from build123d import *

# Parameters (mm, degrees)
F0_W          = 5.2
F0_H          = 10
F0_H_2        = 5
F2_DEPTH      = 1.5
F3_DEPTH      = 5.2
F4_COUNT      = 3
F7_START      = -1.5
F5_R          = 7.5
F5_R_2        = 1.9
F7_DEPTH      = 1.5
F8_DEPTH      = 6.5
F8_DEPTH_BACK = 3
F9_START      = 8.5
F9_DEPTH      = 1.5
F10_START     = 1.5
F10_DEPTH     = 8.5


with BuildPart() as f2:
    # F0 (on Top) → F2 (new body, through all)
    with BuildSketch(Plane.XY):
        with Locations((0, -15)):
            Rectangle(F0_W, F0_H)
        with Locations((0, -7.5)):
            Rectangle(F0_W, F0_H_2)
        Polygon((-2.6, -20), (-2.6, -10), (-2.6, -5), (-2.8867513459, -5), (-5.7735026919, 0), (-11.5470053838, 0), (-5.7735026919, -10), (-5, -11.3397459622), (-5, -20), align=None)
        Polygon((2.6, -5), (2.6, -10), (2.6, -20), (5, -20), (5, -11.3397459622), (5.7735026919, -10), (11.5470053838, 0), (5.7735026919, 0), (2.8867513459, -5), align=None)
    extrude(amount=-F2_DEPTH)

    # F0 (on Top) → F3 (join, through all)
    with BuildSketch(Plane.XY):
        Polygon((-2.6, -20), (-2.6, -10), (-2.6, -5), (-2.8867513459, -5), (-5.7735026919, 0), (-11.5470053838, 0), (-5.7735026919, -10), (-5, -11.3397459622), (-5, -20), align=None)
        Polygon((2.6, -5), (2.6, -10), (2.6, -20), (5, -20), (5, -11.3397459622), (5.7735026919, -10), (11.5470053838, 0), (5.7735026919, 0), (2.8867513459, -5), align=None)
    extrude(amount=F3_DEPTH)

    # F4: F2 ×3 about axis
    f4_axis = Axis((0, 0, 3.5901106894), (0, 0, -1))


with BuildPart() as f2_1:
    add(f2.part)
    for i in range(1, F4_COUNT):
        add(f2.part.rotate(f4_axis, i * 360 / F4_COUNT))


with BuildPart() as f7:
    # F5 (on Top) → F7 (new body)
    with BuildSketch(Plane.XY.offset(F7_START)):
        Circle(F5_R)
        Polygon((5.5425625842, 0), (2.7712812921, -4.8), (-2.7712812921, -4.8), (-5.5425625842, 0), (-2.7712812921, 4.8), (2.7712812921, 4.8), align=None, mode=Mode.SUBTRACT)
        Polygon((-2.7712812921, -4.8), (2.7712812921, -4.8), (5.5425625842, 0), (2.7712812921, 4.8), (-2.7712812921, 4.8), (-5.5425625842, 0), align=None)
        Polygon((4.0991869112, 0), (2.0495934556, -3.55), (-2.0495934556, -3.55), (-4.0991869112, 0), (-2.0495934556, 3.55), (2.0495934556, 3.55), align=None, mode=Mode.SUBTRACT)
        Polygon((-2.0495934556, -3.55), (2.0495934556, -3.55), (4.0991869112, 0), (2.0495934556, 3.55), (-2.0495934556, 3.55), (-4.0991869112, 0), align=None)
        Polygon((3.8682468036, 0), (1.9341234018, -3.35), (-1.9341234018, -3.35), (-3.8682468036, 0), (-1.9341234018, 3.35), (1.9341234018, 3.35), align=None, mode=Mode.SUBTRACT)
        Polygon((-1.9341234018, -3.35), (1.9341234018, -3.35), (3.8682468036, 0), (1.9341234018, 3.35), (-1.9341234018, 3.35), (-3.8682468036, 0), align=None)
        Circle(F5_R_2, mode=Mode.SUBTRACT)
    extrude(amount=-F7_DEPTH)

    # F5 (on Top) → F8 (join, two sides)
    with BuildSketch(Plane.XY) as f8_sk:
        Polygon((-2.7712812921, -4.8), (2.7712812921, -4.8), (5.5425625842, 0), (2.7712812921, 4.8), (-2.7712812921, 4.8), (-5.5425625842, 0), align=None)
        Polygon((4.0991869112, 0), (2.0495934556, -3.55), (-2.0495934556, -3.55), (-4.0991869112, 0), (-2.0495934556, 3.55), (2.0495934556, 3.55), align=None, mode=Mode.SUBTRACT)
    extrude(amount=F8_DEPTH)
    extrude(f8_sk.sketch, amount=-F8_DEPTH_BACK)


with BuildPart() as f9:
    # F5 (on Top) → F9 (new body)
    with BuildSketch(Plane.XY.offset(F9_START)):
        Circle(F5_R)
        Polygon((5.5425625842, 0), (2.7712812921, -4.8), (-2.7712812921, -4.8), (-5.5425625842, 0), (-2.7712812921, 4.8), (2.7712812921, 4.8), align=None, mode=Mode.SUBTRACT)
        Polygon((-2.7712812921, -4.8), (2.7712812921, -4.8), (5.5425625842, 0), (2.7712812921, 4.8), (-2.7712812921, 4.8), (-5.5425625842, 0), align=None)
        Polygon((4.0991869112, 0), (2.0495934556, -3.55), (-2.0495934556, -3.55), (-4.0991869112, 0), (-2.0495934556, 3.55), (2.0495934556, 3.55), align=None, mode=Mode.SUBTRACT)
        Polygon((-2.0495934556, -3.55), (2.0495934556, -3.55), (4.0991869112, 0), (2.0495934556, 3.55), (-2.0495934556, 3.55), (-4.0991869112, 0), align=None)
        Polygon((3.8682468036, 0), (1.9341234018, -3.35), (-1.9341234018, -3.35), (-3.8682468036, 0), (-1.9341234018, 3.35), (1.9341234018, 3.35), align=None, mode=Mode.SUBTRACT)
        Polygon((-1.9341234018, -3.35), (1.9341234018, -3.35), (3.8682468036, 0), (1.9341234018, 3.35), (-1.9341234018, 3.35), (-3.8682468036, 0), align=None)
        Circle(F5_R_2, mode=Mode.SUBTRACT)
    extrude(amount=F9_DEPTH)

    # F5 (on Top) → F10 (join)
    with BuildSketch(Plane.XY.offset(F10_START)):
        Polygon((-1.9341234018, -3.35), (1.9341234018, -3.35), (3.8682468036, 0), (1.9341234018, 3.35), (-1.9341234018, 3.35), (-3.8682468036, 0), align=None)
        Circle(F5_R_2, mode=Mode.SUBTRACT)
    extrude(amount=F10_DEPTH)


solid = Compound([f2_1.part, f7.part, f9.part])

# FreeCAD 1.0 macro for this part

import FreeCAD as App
import Part
import Sketcher
Q = App.Units.Quantity

doc = App.newDocument("Part")
body = doc.addObject("PartDesign::Body", "Body")

sketch1 = body.newObject("Sketcher::SketchObject", "Sketch")
sketch1.AttachmentSupport = (doc.getObject("XY_Plane"), [""])
sketch1.MapMode = "FlatFace"
sketch1.addGeometry(Part.LineSegment(App.Vector(-2.9, -5, 0), App.Vector(-5.8, 0, 0)), False)
sketch1.addGeometry(Part.LineSegment(App.Vector(-5.8, 0, 0), App.Vector(-11.5, 0, 0)), False)
sketch1.addGeometry(Part.LineSegment(App.Vector(-11.5, 0, 0), App.Vector(-5.8, -10, 0)), False)
sketch1.addGeometry(Part.LineSegment(App.Vector(-5.8, -10, 0), App.Vector(-5, -11.3, 0)), False)
sketch1.addGeometry(Part.LineSegment(App.Vector(-5, -11.3, 0), App.Vector(-5, -20, 0)), False)
sketch1.addGeometry(Part.LineSegment(App.Vector(-5, -20, 0), App.Vector(5, -20, 0)), False)
sketch1.addGeometry(Part.LineSegment(App.Vector(5, -20, 0), App.Vector(5, -11.3, 0)), False)
sketch1.addGeometry(Part.LineSegment(App.Vector(5, -11.3, 0), App.Vector(5.8, -10, 0)), False)
sketch1.addGeometry(Part.LineSegment(App.Vector(5.8, -10, 0), App.Vector(11.5, 0, 0)), False)
sketch1.addGeometry(Part.LineSegment(App.Vector(11.5, 0, 0), App.Vector(5.8, 0, 0)), False)
sketch1.addGeometry(Part.LineSegment(App.Vector(5.8, 0, 0), App.Vector(2.9, -5, 0)), False)
sketch1.addGeometry(Part.LineSegment(App.Vector(2.9, -5, 0), App.Vector(-2.9, -5, 0)), False)
sketch1.addConstraint(Sketcher.Constraint("Coincident", 0, 2, 1, 1))
sketch1.addConstraint(Sketcher.Constraint("Coincident", 1, 2, 2, 1))
sketch1.addConstraint(Sketcher.Constraint("Coincident", 2, 2, 3, 1))
sketch1.addConstraint(Sketcher.Constraint("Coincident", 3, 2, 4, 1))
sketch1.addConstraint(Sketcher.Constraint("Coincident", 4, 2, 5, 1))
sketch1.addConstraint(Sketcher.Constraint("Coincident", 5, 2, 6, 1))
sketch1.addConstraint(Sketcher.Constraint("Coincident", 6, 2, 7, 1))
sketch1.addConstraint(Sketcher.Constraint("Coincident", 7, 2, 8, 1))
sketch1.addConstraint(Sketcher.Constraint("Coincident", 8, 2, 9, 1))
sketch1.addConstraint(Sketcher.Constraint("Coincident", 9, 2, 10, 1))
sketch1.addConstraint(Sketcher.Constraint("Coincident", 10, 2, 11, 1))
sketch1.addConstraint(Sketcher.Constraint("Coincident", 11, 2, 0, 1))
sketch1.addConstraint(Sketcher.Constraint("Horizontal", 1))
sketch1.addConstraint(Sketcher.Constraint("Vertical", 4))
sketch1.addConstraint(Sketcher.Constraint("Horizontal", 5))
sketch1.addConstraint(Sketcher.Constraint("Vertical", 6))
sketch1.addConstraint(Sketcher.Constraint("Horizontal", 9))
sketch1.addConstraint(Sketcher.Constraint("Horizontal", 11))
sketch1.addConstraint(Sketcher.Constraint("Symmetric", 1, 2, 8, 2, -1, 1))
sketch1.addConstraint(Sketcher.Constraint("Symmetric", 3, 2, 6, 2, -2))
sketch1.addConstraint(Sketcher.Constraint("Symmetric", 2, 2, 7, 2, -2))
sketch1.addConstraint(Sketcher.Constraint("Symmetric", 0, 2, 9, 2, -2))
sketch1.addConstraint(Sketcher.Constraint("Parallel", 0, 2))
sketch1.addConstraint(Sketcher.Constraint("Parallel", 2, 3))
sketch1.addConstraint(Sketcher.Constraint("Parallel", 8, 10))
sketch1.addConstraint(Sketcher.Constraint("Vertical", 0, 2, 2, 2))
sketch1.addConstraint(Sketcher.Constraint("Equal", 9, 11))
sketch1.addConstraint(Sketcher.Constraint("DistanceX", 5, 1, 5, 2, Q("10 mm")))
sketch1.addConstraint(Sketcher.Constraint("Angle", 0, Q("120 deg")))
sketch1.addConstraint(Sketcher.Constraint("DistanceY", 2, 2, -1, 1, Q("10 mm")))
sketch1.addConstraint(Sketcher.Constraint("DistanceY", 4, 2, -1, 1, Q("20 mm")))
sketch1.addConstraint(Sketcher.Constraint("DistanceY", 10, 2, -1, 1, Q("5 mm")))
pad1 = body.newObject("PartDesign::Pad", "Pad")
pad1.Profile = sketch1
pad1.Length = 1.5
pad1.Reversed = True

sketch2 = body.newObject("Sketcher::SketchObject", "Sketch001")
sketch2.AttachmentSupport = (doc.getObject("XY_Plane"), [""])
sketch2.MapMode = "FlatFace"
sketch2.addGeometry(Part.LineSegment(App.Vector(-2.6, -20, 0), App.Vector(-2.6, -5, 0)), False)
sketch2.addGeometry(Part.LineSegment(App.Vector(-2.6, -5, 0), App.Vector(-2.89, -5, 0)), False)
sketch2.addGeometry(Part.LineSegment(App.Vector(-2.89, -5, 0), App.Vector(-5.77, 0, 0)), False)
sketch2.addGeometry(Part.LineSegment(App.Vector(-5.77, 0, 0), App.Vector(-11.55, 0, 0)), False)
sketch2.addGeometry(Part.LineSegment(App.Vector(-11.55, 0, 0), App.Vector(-5.77, -10, 0)), False)
sketch2.addGeometry(Part.LineSegment(App.Vector(-5.77, -10, 0), App.Vector(-5, -11.34, 0)), False)
sketch2.addGeometry(Part.LineSegment(App.Vector(-5, -11.34, 0), App.Vector(-5, -20, 0)), False)
sketch2.addGeometry(Part.LineSegment(App.Vector(-5, -20, 0), App.Vector(-2.6, -20, 0)), False)
sketch2.addGeometry(Part.LineSegment(App.Vector(2.6, -5, 0), App.Vector(2.6, -20, 0)), False)
sketch2.addGeometry(Part.LineSegment(App.Vector(2.6, -20, 0), App.Vector(5, -20, 0)), False)
sketch2.addGeometry(Part.LineSegment(App.Vector(5, -20, 0), App.Vector(5, -11.34, 0)), False)
sketch2.addGeometry(Part.LineSegment(App.Vector(5, -11.34, 0), App.Vector(5.77, -10, 0)), False)
sketch2.addGeometry(Part.LineSegment(App.Vector(5.77, -10, 0), App.Vector(11.55, 0, 0)), False)
sketch2.addGeometry(Part.LineSegment(App.Vector(11.55, 0, 0), App.Vector(5.77, 0, 0)), False)
sketch2.addGeometry(Part.LineSegment(App.Vector(5.77, 0, 0), App.Vector(2.89, -5, 0)), False)
sketch2.addGeometry(Part.LineSegment(App.Vector(2.89, -5, 0), App.Vector(2.6, -5, 0)), False)
sketch2.addConstraint(Sketcher.Constraint("Coincident", 0, 2, 1, 1))
sketch2.addConstraint(Sketcher.Constraint("Coincident", 1, 2, 2, 1))
sketch2.addConstraint(Sketcher.Constraint("Coincident", 2, 2, 3, 1))
sketch2.addConstraint(Sketcher.Constraint("Coincident", 3, 2, 4, 1))
sketch2.addConstraint(Sketcher.Constraint("Coincident", 4, 2, 5, 1))
sketch2.addConstraint(Sketcher.Constraint("Coincident", 5, 2, 6, 1))
sketch2.addConstraint(Sketcher.Constraint("Coincident", 6, 2, 7, 1))
sketch2.addConstraint(Sketcher.Constraint("Coincident", 7, 2, 0, 1))
sketch2.addConstraint(Sketcher.Constraint("Coincident", 8, 2, 9, 1))
sketch2.addConstraint(Sketcher.Constraint("Coincident", 9, 2, 10, 1))
sketch2.addConstraint(Sketcher.Constraint("Coincident", 10, 2, 11, 1))
sketch2.addConstraint(Sketcher.Constraint("Coincident", 11, 2, 12, 1))
sketch2.addConstraint(Sketcher.Constraint("Coincident", 12, 2, 13, 1))
sketch2.addConstraint(Sketcher.Constraint("Coincident", 13, 2, 14, 1))
sketch2.addConstraint(Sketcher.Constraint("Coincident", 14, 2, 15, 1))
sketch2.addConstraint(Sketcher.Constraint("Coincident", 15, 2, 8, 1))
sketch2.addConstraint(Sketcher.Constraint("Vertical", 0))
sketch2.addConstraint(Sketcher.Constraint("Horizontal", 1))
sketch2.addConstraint(Sketcher.Constraint("Horizontal", 3))
sketch2.addConstraint(Sketcher.Constraint("Vertical", 6))
sketch2.addConstraint(Sketcher.Constraint("Horizontal", 7))
sketch2.addConstraint(Sketcher.Constraint("Vertical", 8))
sketch2.addConstraint(Sketcher.Constraint("Horizontal", 9))
sketch2.addConstraint(Sketcher.Constraint("Vertical", 10))
sketch2.addConstraint(Sketcher.Constraint("Horizontal", 13))
sketch2.addConstraint(Sketcher.Constraint("Horizontal", 15))
sketch2.addConstraint(Sketcher.Constraint("Symmetric", 3, 2, 12, 2, -1, 1))
sketch2.addConstraint(Sketcher.Constraint("Symmetric", 7, 2, 8, 2, -2))
sketch2.addConstraint(Sketcher.Constraint("Symmetric", 5, 2, 10, 2, -2))
sketch2.addConstraint(Sketcher.Constraint("Symmetric", 4, 2, 11, 2, -2))
sketch2.addConstraint(Sketcher.Constraint("Symmetric", 2, 2, 13, 2, -2))
sketch2.addConstraint(Sketcher.Constraint("Symmetric", 1, 2, 14, 2, -2))
sketch2.addConstraint(Sketcher.Constraint("Parallel", 2, 4))
sketch2.addConstraint(Sketcher.Constraint("Parallel", 4, 5))
sketch2.addConstraint(Sketcher.Constraint("Vertical", 2, 2, 4, 2))
sketch2.addConstraint(Sketcher.Constraint("DistanceY", 0, 1, 0, 2, Q("15 mm")))
sketch2.addConstraint(Sketcher.Constraint("Angle", 2, Q("120 deg")))
sketch2.addConstraint(Sketcher.Constraint("DistanceX", 7, 1, 7, 2, Q("2.4 mm")))
sketch2.addConstraint(Sketcher.Constraint("DistanceY", 0, 2, -1, 1, Q("5 mm")))
sketch2.addConstraint(Sketcher.Constraint("DistanceY", 4, 2, -1, 1, Q("10 mm")))
sketch2.addConstraint(Sketcher.Constraint("DistanceX", 5, 2, -1, 1, Q("5 mm")))
sketch2.addConstraint(Sketcher.Constraint("DistanceX", 1, 2, 1, 1, Q("0.286751 mm")))
pad2 = body.newObject("PartDesign::Pad", "Pad001")
pad2.Profile = sketch2
pad2.Length = 5.2
body2 = doc.addObject("PartDesign::Body", "Body001")
doc.recompute()

body2.BaseFeature = body
doc.recompute()

body3 = doc.addObject("PartDesign::Body", "Body002")
body3.BaseFeature = body
body3.Placement = App.Placement(App.Vector(0, 0, 0), App.Rotation(App.Vector(0, 0, -1), 120))
boolean = body2.newObject("PartDesign::Boolean", "Boolean")
boolean.Type = "Fuse"
boolean.addObjects([body3])
doc.recompute()

body.Placement = App.Placement(App.Vector(0, 0, 0), App.Rotation(App.Vector(0, 0, -1), 240))
boolean2 = body2.newObject("PartDesign::Boolean", "Boolean001")
boolean2.Type = "Fuse"
boolean2.addObjects([body])
body4 = doc.addObject("PartDesign::Body", "Body003")

sketch3 = body4.newObject("Sketcher::SketchObject", "Sketch002")
sketch3.AttachmentSupport = (doc.getObject("XY_Plane003"), [""])
sketch3.MapMode = "FlatFace"
sketch3.AttachmentOffset = App.Placement(App.Vector(0, 0, -1.5), App.Rotation())
sketch3.addGeometry(Part.Circle(App.Vector(0, 0, 0), App.Vector(0, 0, 1), 7.5), False)
sketch3.addGeometry(Part.Circle(App.Vector(0, 0, 0), App.Vector(0, 0, 1), 1.9), False)
sketch3.addConstraint(Sketcher.Constraint("Coincident", 0, 3, -1, 1))
sketch3.addConstraint(Sketcher.Constraint("Coincident", 1, 3, -1, 1))
sketch3.addConstraint(Sketcher.Constraint("Diameter", 0, Q("15 mm")))
sketch3.addConstraint(Sketcher.Constraint("Diameter", 1, Q("3.8 mm")))
pad3 = body4.newObject("PartDesign::Pad", "Pad002")
pad3.Profile = sketch3
pad3.Length = 1.5
pad3.Reversed = True

sketch4 = body4.newObject("Sketcher::SketchObject", "Sketch003")
sketch4.AttachmentSupport = (doc.getObject("XY_Plane003"), [""])
sketch4.MapMode = "FlatFace"
sketch4.addGeometry(Part.LineSegment(App.Vector(-2.8, -4.8, 0), App.Vector(2.8, -4.8, 0)), False)
sketch4.addGeometry(Part.LineSegment(App.Vector(2.8, -4.8, 0), App.Vector(5.5, 0, 0)), False)
sketch4.addGeometry(Part.LineSegment(App.Vector(5.5, 0, 0), App.Vector(2.8, 4.8, 0)), False)
sketch4.addGeometry(Part.LineSegment(App.Vector(2.8, 4.8, 0), App.Vector(-2.8, 4.8, 0)), False)
sketch4.addGeometry(Part.LineSegment(App.Vector(-2.8, 4.8, 0), App.Vector(-5.5, 0, 0)), False)
sketch4.addGeometry(Part.LineSegment(App.Vector(-5.5, 0, 0), App.Vector(-2.8, -4.8, 0)), False)
sketch4.addGeometry(Part.LineSegment(App.Vector(2, 3.5, 0), App.Vector(4.1, 0, 0)), False)
sketch4.addGeometry(Part.LineSegment(App.Vector(4.1, 0, 0), App.Vector(2, -3.5, 0)), False)
sketch4.addGeometry(Part.LineSegment(App.Vector(2, -3.5, 0), App.Vector(-2, -3.5, 0)), False)
sketch4.addGeometry(Part.LineSegment(App.Vector(-2, -3.5, 0), App.Vector(-4.1, 0, 0)), False)
sketch4.addGeometry(Part.LineSegment(App.Vector(-4.1, 0, 0), App.Vector(-2, 3.5, 0)), False)
sketch4.addGeometry(Part.LineSegment(App.Vector(-2, 3.5, 0), App.Vector(2, 3.5, 0)), False)
sketch4.addConstraint(Sketcher.Constraint("Coincident", 0, 2, 1, 1))
sketch4.addConstraint(Sketcher.Constraint("Coincident", 1, 2, 2, 1))
sketch4.addConstraint(Sketcher.Constraint("Coincident", 2, 2, 3, 1))
sketch4.addConstraint(Sketcher.Constraint("Coincident", 3, 2, 4, 1))
sketch4.addConstraint(Sketcher.Constraint("Coincident", 4, 2, 5, 1))
sketch4.addConstraint(Sketcher.Constraint("Coincident", 5, 2, 0, 1))
sketch4.addConstraint(Sketcher.Constraint("Coincident", 6, 2, 7, 1))
sketch4.addConstraint(Sketcher.Constraint("Coincident", 7, 2, 8, 1))
sketch4.addConstraint(Sketcher.Constraint("Coincident", 8, 2, 9, 1))
sketch4.addConstraint(Sketcher.Constraint("Coincident", 9, 2, 10, 1))
sketch4.addConstraint(Sketcher.Constraint("Coincident", 10, 2, 11, 1))
sketch4.addConstraint(Sketcher.Constraint("Coincident", 11, 2, 6, 1))
sketch4.addConstraint(Sketcher.Constraint("Horizontal", 0))
sketch4.addConstraint(Sketcher.Constraint("Horizontal", 3))
sketch4.addConstraint(Sketcher.Constraint("Horizontal", 8))
sketch4.addConstraint(Sketcher.Constraint("Horizontal", 11))
sketch4.addConstraint(Sketcher.Constraint("Symmetric", 0, 2, 3, 2, -1, 1))
sketch4.addConstraint(Sketcher.Constraint("Symmetric", 1, 2, 4, 2, -1, 1))
sketch4.addConstraint(Sketcher.Constraint("Symmetric", 6, 2, 9, 2, -1, 1))
sketch4.addConstraint(Sketcher.Constraint("Symmetric", 7, 2, 10, 2, -1, 1))
sketch4.addConstraint(Sketcher.Constraint("PointOnObject", 1, 2, -1))
sketch4.addConstraint(Sketcher.Constraint("PointOnObject", 6, 2, -1))
sketch4.addConstraint(Sketcher.Constraint("Parallel", 2, 5))
sketch4.addConstraint(Sketcher.Constraint("Parallel", 5, 6))
sketch4.addConstraint(Sketcher.Constraint("Parallel", 4, 7))
sketch4.addConstraint(Sketcher.Constraint("Parallel", 6, 9))
sketch4.addConstraint(Sketcher.Constraint("Vertical", 0, 2, 2, 2))
sketch4.addConstraint(Sketcher.Constraint("Angle", 1, Q("60 deg")))
sketch4.addConstraint(Sketcher.Constraint("DistanceY", 0, 2, -1, 1, Q("4.8 mm")))
sketch4.addConstraint(Sketcher.Constraint("DistanceY", 8, 2, 10, 2, Q("7.1 mm")))
sketch4.addConstraint(Sketcher.Constraint("DistanceX", 0, 1, 0, 2, Q("5.542563 mm")))
sketch4.addConstraint(Sketcher.Constraint("DistanceX", 8, 2, 8, 1, Q("4.099187 mm")))
pad4 = body4.newObject("PartDesign::Pad", "Pad003")
pad4.Profile = sketch4
pad4.Type = "TwoLengths"
pad4.Length = 6.5
pad4.Length2 = 3
body5 = doc.addObject("PartDesign::Body", "Body004")

sketch5 = body5.newObject("Sketcher::SketchObject", "Sketch004")
sketch5.AttachmentSupport = (doc.getObject("XY_Plane004"), [""])
sketch5.MapMode = "FlatFace"
sketch5.AttachmentOffset = App.Placement(App.Vector(0, 0, 8.5), App.Rotation())
sketch5.addGeometry(Part.Circle(App.Vector(0, 0, 0), App.Vector(0, 0, 1), 7.5), False)
sketch5.addGeometry(Part.Circle(App.Vector(0, 0, 0), App.Vector(0, 0, 1), 1.9), False)
sketch5.addConstraint(Sketcher.Constraint("Coincident", 0, 3, -1, 1))
sketch5.addConstraint(Sketcher.Constraint("Coincident", 1, 3, -1, 1))
sketch5.addConstraint(Sketcher.Constraint("Diameter", 0, Q("15 mm")))
sketch5.addConstraint(Sketcher.Constraint("Diameter", 1, Q("3.8 mm")))
pad5 = body5.newObject("PartDesign::Pad", "Pad004")
pad5.Profile = sketch5
pad5.Length = 1.5

sketch6 = body5.newObject("Sketcher::SketchObject", "Sketch005")
sketch6.AttachmentSupport = (doc.getObject("XY_Plane004"), [""])
sketch6.MapMode = "FlatFace"
sketch6.AttachmentOffset = App.Placement(App.Vector(0, 0, 1.5), App.Rotation())
sketch6.addGeometry(Part.LineSegment(App.Vector(-1.9, -3.4, 0), App.Vector(1.9, -3.4, 0)), False)
sketch6.addGeometry(Part.LineSegment(App.Vector(1.9, -3.4, 0), App.Vector(3.9, 0, 0)), False)
sketch6.addGeometry(Part.LineSegment(App.Vector(3.9, 0, 0), App.Vector(1.9, 3.4, 0)), False)
sketch6.addGeometry(Part.LineSegment(App.Vector(1.9, 3.4, 0), App.Vector(-1.9, 3.4, 0)), False)
sketch6.addGeometry(Part.LineSegment(App.Vector(-1.9, 3.4, 0), App.Vector(-3.9, 0, 0)), False)
sketch6.addGeometry(Part.LineSegment(App.Vector(-3.9, 0, 0), App.Vector(-1.9, -3.4, 0)), False)
sketch6.addGeometry(Part.Circle(App.Vector(0, 0, 0), App.Vector(0, 0, 1), 1.9), False)
sketch6.addConstraint(Sketcher.Constraint("Coincident", 0, 2, 1, 1))
sketch6.addConstraint(Sketcher.Constraint("Coincident", 1, 2, 2, 1))
sketch6.addConstraint(Sketcher.Constraint("Coincident", 2, 2, 3, 1))
sketch6.addConstraint(Sketcher.Constraint("Coincident", 3, 2, 4, 1))
sketch6.addConstraint(Sketcher.Constraint("Coincident", 4, 2, 5, 1))
sketch6.addConstraint(Sketcher.Constraint("Coincident", 5, 2, 0, 1))
sketch6.addConstraint(Sketcher.Constraint("Horizontal", 0))
sketch6.addConstraint(Sketcher.Constraint("Horizontal", 3))
sketch6.addConstraint(Sketcher.Constraint("Coincident", 6, 3, -1, 1))
sketch6.addConstraint(Sketcher.Constraint("Symmetric", 0, 2, 3, 2, -1, 1))
sketch6.addConstraint(Sketcher.Constraint("Symmetric", 1, 2, 4, 2, -1, 1))
sketch6.addConstraint(Sketcher.Constraint("PointOnObject", 1, 2, -1))
sketch6.addConstraint(Sketcher.Constraint("Parallel", 2, 5))
sketch6.addConstraint(Sketcher.Constraint("Vertical", 0, 2, 2, 2))
sketch6.addConstraint(Sketcher.Constraint("Diameter", 6, Q("3.8 mm")))
sketch6.addConstraint(Sketcher.Constraint("Angle", 1, Q("60 deg")))
sketch6.addConstraint(Sketcher.Constraint("DistanceY", 0, 2, 2, 2, Q("6.7 mm")))
sketch6.addConstraint(Sketcher.Constraint("DistanceX", 0, 1, 0, 2, Q("3.868247 mm")))
pad6 = body5.newObject("PartDesign::Pad", "Pad005")
pad6.Profile = sketch6
pad6.Length = 8.5

doc.recompute()
